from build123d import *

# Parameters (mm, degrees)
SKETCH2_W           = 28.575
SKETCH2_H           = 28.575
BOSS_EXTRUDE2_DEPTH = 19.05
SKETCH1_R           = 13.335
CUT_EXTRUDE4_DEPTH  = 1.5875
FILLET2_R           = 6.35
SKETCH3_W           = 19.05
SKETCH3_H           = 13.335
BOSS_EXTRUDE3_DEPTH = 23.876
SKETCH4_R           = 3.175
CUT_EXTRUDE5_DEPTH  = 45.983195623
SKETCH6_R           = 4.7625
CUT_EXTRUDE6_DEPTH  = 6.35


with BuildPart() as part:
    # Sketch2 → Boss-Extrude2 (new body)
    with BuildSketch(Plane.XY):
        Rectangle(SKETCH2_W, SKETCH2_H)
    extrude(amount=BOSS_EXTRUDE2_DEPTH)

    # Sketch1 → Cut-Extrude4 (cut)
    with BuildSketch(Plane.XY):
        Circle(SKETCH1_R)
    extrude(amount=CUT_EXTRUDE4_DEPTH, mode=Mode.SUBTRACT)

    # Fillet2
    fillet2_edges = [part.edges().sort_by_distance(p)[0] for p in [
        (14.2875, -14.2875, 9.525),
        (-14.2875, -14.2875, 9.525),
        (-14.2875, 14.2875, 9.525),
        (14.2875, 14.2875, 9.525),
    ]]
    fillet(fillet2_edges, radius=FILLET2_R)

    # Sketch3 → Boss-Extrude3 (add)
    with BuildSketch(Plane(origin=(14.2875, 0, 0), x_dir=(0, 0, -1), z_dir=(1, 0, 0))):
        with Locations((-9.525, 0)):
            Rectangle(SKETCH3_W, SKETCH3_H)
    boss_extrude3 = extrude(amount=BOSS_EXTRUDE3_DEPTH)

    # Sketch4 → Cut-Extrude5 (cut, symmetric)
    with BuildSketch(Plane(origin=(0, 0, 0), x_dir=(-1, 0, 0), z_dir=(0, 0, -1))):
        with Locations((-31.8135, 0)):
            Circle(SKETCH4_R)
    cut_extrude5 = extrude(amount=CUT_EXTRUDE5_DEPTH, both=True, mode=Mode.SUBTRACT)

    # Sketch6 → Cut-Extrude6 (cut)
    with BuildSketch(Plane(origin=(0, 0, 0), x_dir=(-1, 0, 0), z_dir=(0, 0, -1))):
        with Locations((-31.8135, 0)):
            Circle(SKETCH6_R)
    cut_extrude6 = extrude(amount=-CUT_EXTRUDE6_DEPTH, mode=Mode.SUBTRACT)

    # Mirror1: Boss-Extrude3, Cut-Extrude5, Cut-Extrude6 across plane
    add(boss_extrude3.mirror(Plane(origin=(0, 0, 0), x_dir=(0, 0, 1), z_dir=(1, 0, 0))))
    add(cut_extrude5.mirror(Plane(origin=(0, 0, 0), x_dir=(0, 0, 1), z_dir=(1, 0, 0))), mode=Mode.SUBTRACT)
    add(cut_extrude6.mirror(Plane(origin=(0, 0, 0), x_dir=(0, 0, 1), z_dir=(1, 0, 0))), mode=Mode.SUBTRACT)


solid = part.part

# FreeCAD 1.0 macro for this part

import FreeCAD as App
import Part
import Sketcher

V = App.Vector
Q = App.Units.Quantity


def edges_at(feature, points):
    """Names of the edges that pass closest to the given points."""
    edges = feature.Shape.Edges
    near = lambda p: min(range(len(edges)), key=lambda i: edges[i].distToShape(Part.Vertex(*p))[0])
    return sorted({f"Edge{near(p) + 1}" for p in points})


def add_polygon(sketch, points):
    """Adds a closed chain of lines whose ends are joined by coincident constraints."""
    first, n = sketch.GeometryCount, len(points)
    for a, b in zip(points, points[1:] + points[:1]):
        sketch.addGeometry(Part.LineSegment(App.Vector(*a, 0), App.Vector(*b, 0)), False)
    for i in range(n):
        sketch.addConstraint(Sketcher.Constraint("Coincident", first + i, 2, first + (i + 1) % n, 1))

doc = App.newDocument("Part")
params = doc.addObject("Spreadsheet::Sheet", "Params")
for row, (alias, value) in enumerate([
    ("sketch1_width", "1.125 in"),
    ("pad1_length", "0.75 in"),
    ("sketch2_diameter", "1.05 in"),
    ("pocket1_length", "0.0625 in"),
    ("fillet_radius", "0.25 in"),
    ("sketch3_height", "0.75 in"),
    ("sketch3_width", "0.525 in"),
    ("pad2_length", "0.94 in"),
    ("sketch4_diameter", "0.25 in"),
    ("pocket2_length", "91.966391 mm"),
    ("sketch5_diameter", "0.375 in"),
    ("pocket3_length", "0.25 in"),
], start=1):
    params.set(f"A{row}", alias)
    params.set(f"B{row}", "=" + value)
    params.setAlias(f"B{row}", alias)

body = doc.addObject("PartDesign::Body", "Body")

# Sketch on XY plane
sketch1 = body.newObject("Sketcher::SketchObject", "Sketch")
sketch1.AttachmentSupport = (doc.getObject("XY_Plane"), [""])
sketch1.MapMode = "FlatFace"
add_polygon(sketch1, [(-14.2875, 14.2875), (-14.2875, -14.2875), (14.2875, -14.2875), (14.2875, 14.2875)])  # lines 0-3
sketch1.addConstraint([
    Sketcher.Constraint("Vertical", 0),
    Sketcher.Constraint("Horizontal", 1),
    Sketcher.Constraint("Vertical", 2),
    Sketcher.Constraint("Horizontal", 3),
    Sketcher.Constraint("Symmetric", 0, 2, 2, 2, -1, 1),
    Sketcher.Constraint("Equal", 3, 0),
    Sketcher.Constraint("DistanceX", 1, 1, 1, 2, Q("1.125 in")),
])
sketch1.setExpression("Constraints[10]", "Params.sketch1_width")
pad1 = body.newObject("PartDesign::Pad", "Pad")
pad1.Profile = sketch1
pad1.setExpression("Length", "Params.pad1_length")

# Sketch on XY plane
sketch2 = body.newObject("Sketcher::SketchObject", "Sketch001")
sketch2.AttachmentSupport = (doc.getObject("XY_Plane"), [""])
sketch2.MapMode = "FlatFace"
sketch2.addGeometry(Part.Circle(V(0, 0, 0), V(0, 0, 1), 13.335), False)
sketch2.addConstraint([
    Sketcher.Constraint("Coincident", 0, 3, -1, 1),
    Sketcher.Constraint("Diameter", 0, Q("1.05 in")),
])
sketch2.setExpression("Constraints[1]", "Params.sketch2_diameter")
pocket1 = body.newObject("PartDesign::Pocket", "Pocket")
pocket1.Profile = sketch2
pocket1.setExpression("Length", "Params.pocket1_length")
pocket1.Reversed = True
doc.recompute()

fillet = body.newObject("PartDesign::Fillet", "Fillet")
fillet.Base = (pocket1, edges_at(pocket1, [
    (14.287, -14.287, 9.525),
    (-14.287, -14.287, 9.525),
    (-14.287, 14.287, 9.525),
    (14.287, 14.287, 9.525),
]))
fillet.setExpression("Radius", "Params.fillet_radius")

# Sketch on YZ plane
sketch3 = body.newObject("Sketcher::SketchObject", "Sketch002")
sketch3.AttachmentSupport = (doc.getObject("YZ_Plane"), [""])
sketch3.MapMode = "FlatFace"
sketch3.AttachmentOffset = App.Placement(V(0, 0, 0.5625 * 25.4), App.Rotation())
add_polygon(sketch3, [(6.6675, 19.05), (-6.6675, 19.05), (-6.6675, 0), (6.6675, 0)])  # lines 0-3
sketch3.addConstraint([
    Sketcher.Constraint("Horizontal", 0),
    Sketcher.Constraint("Vertical", 1),
    Sketcher.Constraint("Horizontal", 2),
    Sketcher.Constraint("Vertical", 3),
    Sketcher.Constraint("Symmetric", 1, 2, 2, 2, -1, 1),
    Sketcher.Constraint("DistanceY", 1, 2, 1, 1, Q("0.75 in")),
    Sketcher.Constraint("DistanceX", 0, 2, 0, 1, Q("0.525 in")),
])
sketch3.setExpression("Constraints[9]", "Params.sketch3_height")
sketch3.setExpression("Constraints[10]", "Params.sketch3_width")
pad2 = body.newObject("PartDesign::Pad", "Pad001")
pad2.Profile = sketch3
pad2.setExpression("Length", "Params.pad2_length")

# Sketch on XY plane
sketch4 = body.newObject("Sketcher::SketchObject", "Sketch003")
sketch4.AttachmentSupport = (doc.getObject("XY_Plane"), [""])
sketch4.MapMode = "FlatFace"
sketch4.addGeometry(Part.Circle(V(31.8135, 0, 0), V(0, 0, 1), 3.175), False)
sketch4.addConstraint([
    Sketcher.Constraint("PointOnObject", 0, 3, -1),
    Sketcher.Constraint("Diameter", 0, Q("0.25 in")),
    Sketcher.Constraint("DistanceX", -1, 1, 0, 3, Q("1.2525 in")),
])
sketch4.setExpression("Constraints[1]", "Params.sketch4_diameter")
pocket2 = body.newObject("PartDesign::Pocket", "Pocket001")
pocket2.Profile = sketch4
pocket2.setExpression("Length", "Params.pocket2_length")
pocket2.Midplane = True

# Sketch on XY plane
sketch5 = body.newObject("Sketcher::SketchObject", "Sketch004")
sketch5.AttachmentSupport = (doc.getObject("XY_Plane"), [""])
sketch5.MapMode = "FlatFace"
sketch5.addGeometry(Part.Circle(V(31.8135, 0, 0), V(0, 0, 1), 4.7625), False)
sketch5.addConstraint([
    Sketcher.Constraint("PointOnObject", 0, 3, -1),
    Sketcher.Constraint("Diameter", 0, Q("0.375 in")),
    Sketcher.Constraint("DistanceX", -1, 1, 0, 3, Q("1.2525 in")),
])
sketch5.setExpression("Constraints[1]", "Params.sketch5_diameter")
pocket3 = body.newObject("PartDesign::Pocket", "Pocket002")
pocket3.Profile = sketch5
pocket3.setExpression("Length", "Params.pocket3_length")
pocket3.Reversed = True
doc.recompute()

mirrored = body.newObject("PartDesign::Mirrored", "Mirrored")
mirrored.Originals = [pad2, pocket2, pocket3]
mirrored.MirrorPlane = (doc.getObject("YZ_Plane"), [""])
body.Tip = mirrored

doc.recompute()
